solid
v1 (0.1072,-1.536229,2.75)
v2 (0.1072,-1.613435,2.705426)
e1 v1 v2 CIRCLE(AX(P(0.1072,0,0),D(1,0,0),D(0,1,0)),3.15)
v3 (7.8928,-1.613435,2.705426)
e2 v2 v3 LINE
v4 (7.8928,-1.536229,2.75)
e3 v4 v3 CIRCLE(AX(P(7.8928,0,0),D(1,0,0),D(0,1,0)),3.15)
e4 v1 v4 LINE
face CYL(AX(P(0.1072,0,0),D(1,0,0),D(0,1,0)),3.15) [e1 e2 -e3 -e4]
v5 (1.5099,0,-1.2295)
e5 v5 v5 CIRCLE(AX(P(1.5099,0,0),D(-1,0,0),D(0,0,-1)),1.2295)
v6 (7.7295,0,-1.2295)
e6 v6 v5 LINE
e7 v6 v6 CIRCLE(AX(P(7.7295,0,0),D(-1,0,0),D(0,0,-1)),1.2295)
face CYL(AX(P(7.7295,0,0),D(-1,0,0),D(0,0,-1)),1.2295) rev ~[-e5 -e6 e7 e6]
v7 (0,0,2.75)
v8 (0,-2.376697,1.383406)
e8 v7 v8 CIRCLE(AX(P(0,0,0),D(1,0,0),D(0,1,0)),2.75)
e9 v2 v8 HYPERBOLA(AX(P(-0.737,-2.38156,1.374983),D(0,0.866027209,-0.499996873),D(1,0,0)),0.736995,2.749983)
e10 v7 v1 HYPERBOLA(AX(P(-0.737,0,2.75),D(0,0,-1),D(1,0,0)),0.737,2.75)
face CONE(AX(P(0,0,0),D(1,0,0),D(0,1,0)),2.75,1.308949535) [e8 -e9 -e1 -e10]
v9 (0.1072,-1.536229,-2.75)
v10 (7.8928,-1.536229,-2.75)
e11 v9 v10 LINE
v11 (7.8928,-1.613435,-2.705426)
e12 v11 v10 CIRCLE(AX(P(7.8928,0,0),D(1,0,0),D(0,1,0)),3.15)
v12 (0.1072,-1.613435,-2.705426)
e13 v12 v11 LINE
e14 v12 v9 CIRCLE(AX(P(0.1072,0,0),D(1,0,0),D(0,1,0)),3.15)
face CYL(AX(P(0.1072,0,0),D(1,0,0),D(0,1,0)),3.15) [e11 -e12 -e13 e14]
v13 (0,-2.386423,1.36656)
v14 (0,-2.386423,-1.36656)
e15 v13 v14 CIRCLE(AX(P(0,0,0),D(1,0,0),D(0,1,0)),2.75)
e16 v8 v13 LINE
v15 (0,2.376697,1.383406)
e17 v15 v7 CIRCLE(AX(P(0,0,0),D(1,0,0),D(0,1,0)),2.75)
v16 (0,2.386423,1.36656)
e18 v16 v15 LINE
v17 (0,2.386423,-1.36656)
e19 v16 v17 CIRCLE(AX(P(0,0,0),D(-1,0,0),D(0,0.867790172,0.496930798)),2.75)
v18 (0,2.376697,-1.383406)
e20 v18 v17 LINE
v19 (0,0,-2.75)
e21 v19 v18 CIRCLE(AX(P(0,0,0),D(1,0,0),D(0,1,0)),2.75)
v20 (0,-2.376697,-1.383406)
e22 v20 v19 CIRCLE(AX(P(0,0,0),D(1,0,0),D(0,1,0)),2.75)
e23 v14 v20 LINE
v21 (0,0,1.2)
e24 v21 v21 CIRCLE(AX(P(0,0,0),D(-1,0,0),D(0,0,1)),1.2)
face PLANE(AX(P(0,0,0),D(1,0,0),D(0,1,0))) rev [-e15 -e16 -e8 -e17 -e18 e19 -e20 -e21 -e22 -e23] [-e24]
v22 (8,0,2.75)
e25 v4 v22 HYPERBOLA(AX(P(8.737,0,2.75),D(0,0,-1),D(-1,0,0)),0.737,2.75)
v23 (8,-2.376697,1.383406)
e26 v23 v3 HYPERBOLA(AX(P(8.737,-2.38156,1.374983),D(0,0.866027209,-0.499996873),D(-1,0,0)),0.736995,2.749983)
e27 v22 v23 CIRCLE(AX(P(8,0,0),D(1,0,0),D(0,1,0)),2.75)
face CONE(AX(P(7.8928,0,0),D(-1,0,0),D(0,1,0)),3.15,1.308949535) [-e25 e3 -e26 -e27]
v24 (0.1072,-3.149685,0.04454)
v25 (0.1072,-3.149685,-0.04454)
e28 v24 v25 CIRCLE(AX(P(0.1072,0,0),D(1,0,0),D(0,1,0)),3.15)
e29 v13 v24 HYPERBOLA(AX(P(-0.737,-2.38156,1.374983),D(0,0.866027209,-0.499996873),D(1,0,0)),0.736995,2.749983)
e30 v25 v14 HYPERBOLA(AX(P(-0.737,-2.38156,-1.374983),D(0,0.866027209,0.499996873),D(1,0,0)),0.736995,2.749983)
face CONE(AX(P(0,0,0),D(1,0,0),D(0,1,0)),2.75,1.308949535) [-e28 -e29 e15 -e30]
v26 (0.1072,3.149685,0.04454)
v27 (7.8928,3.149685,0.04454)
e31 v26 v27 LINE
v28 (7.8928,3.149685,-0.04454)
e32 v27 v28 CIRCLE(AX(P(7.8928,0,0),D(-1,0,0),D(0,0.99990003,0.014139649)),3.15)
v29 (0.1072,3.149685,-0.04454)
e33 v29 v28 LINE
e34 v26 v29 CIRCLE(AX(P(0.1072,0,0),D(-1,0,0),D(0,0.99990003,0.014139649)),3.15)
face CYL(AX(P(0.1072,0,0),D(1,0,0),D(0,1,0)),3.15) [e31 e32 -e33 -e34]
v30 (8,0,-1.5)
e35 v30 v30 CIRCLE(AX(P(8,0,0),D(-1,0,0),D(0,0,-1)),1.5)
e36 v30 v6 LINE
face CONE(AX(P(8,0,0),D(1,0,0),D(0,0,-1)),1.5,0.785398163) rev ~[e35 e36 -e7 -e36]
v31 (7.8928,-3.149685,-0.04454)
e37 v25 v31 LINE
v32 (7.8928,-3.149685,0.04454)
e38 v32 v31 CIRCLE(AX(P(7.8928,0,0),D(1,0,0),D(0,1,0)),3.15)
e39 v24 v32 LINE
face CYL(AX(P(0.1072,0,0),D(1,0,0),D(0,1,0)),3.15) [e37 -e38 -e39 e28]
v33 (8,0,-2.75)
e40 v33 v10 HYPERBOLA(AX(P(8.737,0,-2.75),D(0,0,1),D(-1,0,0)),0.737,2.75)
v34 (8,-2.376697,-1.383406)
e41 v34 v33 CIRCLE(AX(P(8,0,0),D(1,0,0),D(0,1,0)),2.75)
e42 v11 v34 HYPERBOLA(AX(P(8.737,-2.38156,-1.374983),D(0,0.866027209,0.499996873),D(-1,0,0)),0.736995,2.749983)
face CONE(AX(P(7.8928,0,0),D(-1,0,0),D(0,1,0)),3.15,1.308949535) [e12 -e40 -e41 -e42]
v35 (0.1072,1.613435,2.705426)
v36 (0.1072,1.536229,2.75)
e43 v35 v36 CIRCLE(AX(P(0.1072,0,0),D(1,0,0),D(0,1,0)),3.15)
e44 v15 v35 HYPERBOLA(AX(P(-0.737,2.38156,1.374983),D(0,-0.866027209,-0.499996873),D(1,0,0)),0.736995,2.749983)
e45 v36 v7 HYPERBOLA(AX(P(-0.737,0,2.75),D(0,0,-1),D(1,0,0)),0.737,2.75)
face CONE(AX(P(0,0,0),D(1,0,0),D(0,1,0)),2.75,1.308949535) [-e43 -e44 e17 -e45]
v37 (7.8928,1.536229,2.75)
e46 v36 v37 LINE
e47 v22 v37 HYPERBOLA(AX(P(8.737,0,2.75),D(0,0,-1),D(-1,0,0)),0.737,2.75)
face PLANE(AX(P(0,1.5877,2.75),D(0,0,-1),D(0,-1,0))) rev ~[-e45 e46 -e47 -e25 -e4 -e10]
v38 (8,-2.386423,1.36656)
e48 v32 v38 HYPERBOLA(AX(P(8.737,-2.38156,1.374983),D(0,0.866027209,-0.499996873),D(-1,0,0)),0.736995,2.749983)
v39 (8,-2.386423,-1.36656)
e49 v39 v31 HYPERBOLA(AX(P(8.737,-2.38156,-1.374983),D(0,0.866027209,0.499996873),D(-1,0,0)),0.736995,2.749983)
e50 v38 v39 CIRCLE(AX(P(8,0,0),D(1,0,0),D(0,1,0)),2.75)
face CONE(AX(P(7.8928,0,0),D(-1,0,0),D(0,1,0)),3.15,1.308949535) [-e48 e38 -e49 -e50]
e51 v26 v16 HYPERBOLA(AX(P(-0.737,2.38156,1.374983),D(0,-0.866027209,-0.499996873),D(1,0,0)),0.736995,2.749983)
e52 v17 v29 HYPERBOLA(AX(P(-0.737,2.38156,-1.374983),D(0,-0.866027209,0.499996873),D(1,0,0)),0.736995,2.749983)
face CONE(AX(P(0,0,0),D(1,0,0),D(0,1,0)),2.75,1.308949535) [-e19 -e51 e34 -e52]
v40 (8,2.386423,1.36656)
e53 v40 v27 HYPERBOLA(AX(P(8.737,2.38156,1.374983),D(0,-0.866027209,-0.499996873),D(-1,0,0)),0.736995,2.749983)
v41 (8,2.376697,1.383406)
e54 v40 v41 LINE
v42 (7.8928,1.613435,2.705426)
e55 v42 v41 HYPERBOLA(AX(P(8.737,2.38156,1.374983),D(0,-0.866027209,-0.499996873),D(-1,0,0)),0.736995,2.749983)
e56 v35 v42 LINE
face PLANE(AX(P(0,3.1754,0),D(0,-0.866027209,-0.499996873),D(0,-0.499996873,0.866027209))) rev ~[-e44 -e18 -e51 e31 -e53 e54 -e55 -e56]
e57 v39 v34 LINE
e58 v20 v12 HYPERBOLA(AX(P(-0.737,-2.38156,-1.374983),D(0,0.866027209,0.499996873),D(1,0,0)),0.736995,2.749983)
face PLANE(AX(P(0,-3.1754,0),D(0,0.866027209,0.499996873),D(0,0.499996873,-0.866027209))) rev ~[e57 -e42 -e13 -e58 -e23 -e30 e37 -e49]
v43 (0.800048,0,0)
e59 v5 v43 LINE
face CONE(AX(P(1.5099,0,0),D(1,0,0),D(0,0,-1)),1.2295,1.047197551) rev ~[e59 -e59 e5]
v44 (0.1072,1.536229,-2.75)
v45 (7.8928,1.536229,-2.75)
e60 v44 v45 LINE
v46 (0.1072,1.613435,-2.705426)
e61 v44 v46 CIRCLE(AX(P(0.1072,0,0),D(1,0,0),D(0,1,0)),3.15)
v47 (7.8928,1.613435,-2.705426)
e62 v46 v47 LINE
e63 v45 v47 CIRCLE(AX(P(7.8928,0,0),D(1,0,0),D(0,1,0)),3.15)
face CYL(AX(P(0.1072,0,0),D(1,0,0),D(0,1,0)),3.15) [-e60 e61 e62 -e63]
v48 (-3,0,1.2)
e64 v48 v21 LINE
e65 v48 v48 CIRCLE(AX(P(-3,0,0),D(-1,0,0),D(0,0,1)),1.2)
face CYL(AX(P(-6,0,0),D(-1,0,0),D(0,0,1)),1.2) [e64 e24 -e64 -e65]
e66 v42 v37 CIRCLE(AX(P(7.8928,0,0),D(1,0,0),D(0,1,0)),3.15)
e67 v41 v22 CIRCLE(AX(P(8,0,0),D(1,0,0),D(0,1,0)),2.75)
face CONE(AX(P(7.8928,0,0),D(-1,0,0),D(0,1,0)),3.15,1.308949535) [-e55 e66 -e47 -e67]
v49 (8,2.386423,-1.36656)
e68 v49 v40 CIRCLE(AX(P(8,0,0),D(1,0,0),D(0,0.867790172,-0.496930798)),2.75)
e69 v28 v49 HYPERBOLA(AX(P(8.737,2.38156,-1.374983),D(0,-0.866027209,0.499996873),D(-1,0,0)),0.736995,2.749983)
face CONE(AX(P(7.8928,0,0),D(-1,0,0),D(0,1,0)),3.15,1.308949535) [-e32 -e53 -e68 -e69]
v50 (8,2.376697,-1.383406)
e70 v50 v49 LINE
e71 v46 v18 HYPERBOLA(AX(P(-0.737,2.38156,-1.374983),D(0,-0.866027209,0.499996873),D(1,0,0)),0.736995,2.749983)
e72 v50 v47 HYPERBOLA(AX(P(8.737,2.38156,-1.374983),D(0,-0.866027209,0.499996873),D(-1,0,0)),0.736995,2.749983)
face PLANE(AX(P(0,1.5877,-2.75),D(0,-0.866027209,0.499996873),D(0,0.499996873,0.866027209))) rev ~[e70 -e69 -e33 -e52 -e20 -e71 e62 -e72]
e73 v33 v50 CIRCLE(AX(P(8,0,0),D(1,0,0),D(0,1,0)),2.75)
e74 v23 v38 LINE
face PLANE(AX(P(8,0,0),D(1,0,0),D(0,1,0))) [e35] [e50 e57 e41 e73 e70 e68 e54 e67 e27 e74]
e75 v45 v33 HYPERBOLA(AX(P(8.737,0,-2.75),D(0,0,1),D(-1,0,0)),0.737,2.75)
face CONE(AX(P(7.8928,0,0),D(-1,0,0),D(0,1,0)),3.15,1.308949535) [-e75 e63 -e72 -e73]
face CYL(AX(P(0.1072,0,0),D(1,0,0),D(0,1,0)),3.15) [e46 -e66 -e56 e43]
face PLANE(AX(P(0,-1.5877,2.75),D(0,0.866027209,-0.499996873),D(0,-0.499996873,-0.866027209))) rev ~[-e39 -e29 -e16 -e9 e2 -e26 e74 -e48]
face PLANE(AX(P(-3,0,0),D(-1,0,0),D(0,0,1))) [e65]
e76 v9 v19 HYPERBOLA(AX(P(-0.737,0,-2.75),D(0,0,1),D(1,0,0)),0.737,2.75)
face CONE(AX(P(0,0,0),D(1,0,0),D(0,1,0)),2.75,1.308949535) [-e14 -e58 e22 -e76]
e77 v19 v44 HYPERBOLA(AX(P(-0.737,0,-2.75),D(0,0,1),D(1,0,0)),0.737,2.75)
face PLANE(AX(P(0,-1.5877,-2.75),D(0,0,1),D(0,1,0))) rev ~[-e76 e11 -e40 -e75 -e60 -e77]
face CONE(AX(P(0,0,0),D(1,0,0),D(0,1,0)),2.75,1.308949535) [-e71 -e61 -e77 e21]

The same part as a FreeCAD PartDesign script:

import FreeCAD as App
import Part
import Sketcher
from FreeCAD import Vector
Q = App.Units.Quantity

doc = App.newDocument("Part")
body = doc.addObject("PartDesign::Body", "Body")

# Sketch on XY plane
sketch1 = body.newObject("Sketcher::SketchObject", "Sketch")
sketch1.AttachmentSupport = (doc.getObject("XY_Plane"), [""])
sketch1.MapMode = "FlatFace"
sketch1.addGeometry([
    Part.LineSegment(Vector(0, 0, 0), Vector(8, 0, 0)),  # 0
    Part.LineSegment(Vector(8, 0, 0), Vector(8, 2.75, 0)),  # 1
    Part.LineSegment(Vector(8, 2.75, 0), Vector(7.89, 3.15, 0)),  # 2
    Part.LineSegment(Vector(7.89, 3.15, 0), Vector(0.11, 3.15, 0)),  # 3
    Part.LineSegment(Vector(0.11, 3.15, 0), Vector(0, 2.75, 0)),  # 4
    Part.LineSegment(Vector(0, 2.75, 0), Vector(0, 0, 0)),  # 5
], False)
sketch1.addConstraint([
    Sketcher.Constraint("Coincident", 0, 2, 1, 1),
    Sketcher.Constraint("Coincident", 1, 2, 2, 1),
    Sketcher.Constraint("Coincident", 2, 2, 3, 1),
    Sketcher.Constraint("Coincident", 3, 2, 4, 1),
    Sketcher.Constraint("Coincident", 4, 2, 5, 1),
    Sketcher.Constraint("Coincident", 5, 2, 0, 1),
    Sketcher.Constraint("Horizontal", 0),
    Sketcher.Constraint("Vertical", 1),
    Sketcher.Constraint("Horizontal", 3),
    Sketcher.Constraint("Vertical", 5),
    Sketcher.Constraint("Coincident", 5, 2, -1, 1),
    Sketcher.Constraint("Horizontal", 1, 2, 4, 2),
    Sketcher.Constraint("Equal", 2, 4),
    Sketcher.Constraint("DistanceX", 0, 1, 0, 2, Q("8 mm")),
    Sketcher.Constraint("DistanceY", 1, 1, 1, 2, Q("2.75 mm")),
    Sketcher.Constraint("DistanceY", 1, 2, 2, 2, Q("0.4 mm")),
    Sketcher.Constraint("Distance", 2, Q("0.414 mm")),
])
revolution = body.newObject("PartDesign::Revolution", "Revolution")
revolution.Profile = sketch1
revolution.ReferenceAxis = (sketch1, ["H_Axis"])
revolution.Angle = 360

# Sketch on XY plane
sketch2 = body.newObject("Sketcher::SketchObject", "Sketch001")
sketch2.AttachmentSupport = (doc.getObject("XY_Plane"), [""])
sketch2.MapMode = "FlatFace"
sketch2.addGeometry([
    Part.LineSegment(Vector(-6, 0, 0), Vector(0, 0, 0)),  # 0
    Part.LineSegment(Vector(0, 0, 0), Vector(0, 1.23, 0)),  # 1
    Part.LineSegment(Vector(0, 1.23, 0), Vector(-0.6, 1.23, 0)),  # 2
    Part.LineSegment(Vector(-0.6, 1.23, 0), Vector(-0.6, 1.5, 0)),  # 3
    Part.LineSegment(Vector(-0.6, 1.5, 0), Vector(-5.69, 1.5, 0)),  # 4
    Part.LineSegment(Vector(-5.69, 1.5, 0), Vector(-6, 1.19, 0)),  # 5
    Part.LineSegment(Vector(-6, 1.19, 0), Vector(-6, 0, 0)),  # 6
], False)
sketch2.addConstraint([
    Sketcher.Constraint("Coincident", 0, 2, 1, 1),
    Sketcher.Constraint("Coincident", 1, 2, 2, 1),
    Sketcher.Constraint("Coincident", 2, 2, 3, 1),
    Sketcher.Constraint("Coincident", 3, 2, 4, 1),
    Sketcher.Constraint("Coincident", 4, 2, 5, 1),
    Sketcher.Constraint("Coincident", 5, 2, 6, 1),
    Sketcher.Constraint("Coincident", 6, 2, 0, 1),
    Sketcher.Constraint("Horizontal", 0),
    Sketcher.Constraint("Vertical", 1),
    Sketcher.Constraint("Horizontal", 2),
    Sketcher.Constraint("Vertical", 3),
    Sketcher.Constraint("Horizontal", 4),
    Sketcher.Constraint("Vertical", 6),
    Sketcher.Constraint("Coincident", 0, 2, -1, 1),
    Sketcher.Constraint("DistanceX", 0, 1, 0, 2, Q("6 mm")),
    Sketcher.Constraint("Angle", 5, Q("-135 deg")),
    Sketcher.Constraint("DistanceX", 2, 2, 2, 1, Q("0.6 mm")),
    Sketcher.Constraint("DistanceY", -1, 1, 3, 2, Q("1.5 mm")),
    Sketcher.Constraint("DistanceX", 4, 2, 4, 1, Q("5.0935 mm")),
    Sketcher.Constraint("DistanceY", 1, 1, 1, 2, Q("1.2295 mm")),
])
revolution2 = body.newObject("PartDesign::Revolution", "Revolution001")
revolution2.Profile = sketch2
revolution2.ReferenceAxis = (sketch2, ["H_Axis"])
revolution2.Angle = 360

# Sketch on YZ plane
sketch3 = body.newObject("Sketcher::SketchObject", "Sketch002")
sketch3.AttachmentSupport = (doc.getObject("YZ_Plane"), [""])
sketch3.MapMode = "FlatFace"
sketch3.addGeometry([
    Part.Circle(Vector(0, 0, 0), Vector(0, 0, 1), 6.3),  # 0
    Part.LineSegment(Vector(-1.6, 2.8, 0), Vector(1.6, 2.8, 0)),  # 1
    Part.LineSegment(Vector(1.6, 2.8, 0), Vector(3.2, 0, 0)),  # 2
    Part.LineSegment(Vector(3.2, 0, 0), Vector(1.6, -2.8, 0)),  # 3
    Part.LineSegment(Vector(1.6, -2.8, 0), Vector(-1.6, -2.8, 0)),  # 4
    Part.LineSegment(Vector(-1.6, -2.8, 0), Vector(-3.2, 0, 0)),  # 5
    Part.LineSegment(Vector(-3.2, 0, 0), Vector(-1.6, 2.8, 0)),  # 6
], False)
sketch3.addConstraint([
    Sketcher.Constraint("Coincident", 1, 2, 2, 1),
    Sketcher.Constraint("Coincident", 2, 2, 3, 1),
    Sketcher.Constraint("Coincident", 3, 2, 4, 1),
    Sketcher.Constraint("Coincident", 4, 2, 5, 1),
    Sketcher.Constraint("Coincident", 5, 2, 6, 1),
    Sketcher.Constraint("Coincident", 6, 2, 1, 1),
    Sketcher.Constraint("Horizontal", 1),
    Sketcher.Constraint("Horizontal", 4),
    Sketcher.Constraint("Coincident", 0, 3, -1, 1),
    Sketcher.Constraint("Symmetric", 1, 2, 4, 2, -1, 1),
    Sketcher.Constraint("Symmetric", 2, 2, 5, 2, -1, 1),
    Sketcher.Constraint("PointOnObject", 2, 2, -1),
    Sketcher.Constraint("Parallel", 3, 6),
    Sketcher.Constraint("Vertical", 1, 2, 3, 2),
    Sketcher.Constraint("Diameter", 0, Q("12.6 mm")),
    Sketcher.Constraint("Angle", 2, Q("-60.0002 deg")),
    Sketcher.Constraint("DistanceY", 3, 2, 1, 2, Q("5.5 mm")),
    Sketcher.Constraint("DistanceX", 1, 1, 1, 2, Q("3.1754 mm")),
])
pocket1 = body.newObject("PartDesign::Pocket", "Pocket")
pocket1.Profile = sketch3
pocket1.Length = 8
pocket1.Reversed = True

# Sketch on YZ plane
sketch4 = body.newObject("Sketcher::SketchObject", "Sketch003")
sketch4.AttachmentSupport = (doc.getObject("YZ_Plane"), [""])
sketch4.MapMode = "FlatFace"
sketch4.AttachmentOffset = App.Placement(Vector(0, 0, 8), App.Rotation())
sketch4.addGeometry(Part.Circle(Vector(0, 0, 0), Vector(0, 0, 1), 1.2), False)
sketch4.addConstraint([
    Sketcher.Constraint("Coincident", 0, 3, -1, 1),
    Sketcher.Constraint("Diameter", 0, Q("2.459 mm")),
])
doc.recompute()
hole = body.newObject("PartDesign::Hole", "Hole")
hole.Profile = sketch4
hole.ThreadType = "None"
hole.Diameter = 2.459
hole.DepthType = "Dimension"
hole.Depth = 6.4901
hole.DrillPoint = "Angled"
hole.DrillPointAngle = 120
hole.HoleCutType = "Countersink"
hole.HoleCutDiameter = 3
hole.HoleCutCountersinkAngle = 90

# Sketch on YZ plane
sketch5 = body.newObject("Sketcher::SketchObject", "Sketch004")
sketch5.AttachmentSupport = (doc.getObject("YZ_Plane"), [""])
sketch5.MapMode = "FlatFace"
sketch5.AttachmentOffset = App.Placement(Vector(0, 0, -6), App.Rotation())
sketch5.addGeometry([
    Part.Circle(Vector(0, 0, 0), Vector(0, 0, 1), 2.3),
    Part.Circle(Vector(0, 0, 0), Vector(0, 0, 1), 1.2),
], False)
sketch5.addConstraint([
    Sketcher.Constraint("Coincident", 0, 3, -1, 1),
    Sketcher.Constraint("Coincident", 1, 3, -1, 1),
    Sketcher.Constraint("Diameter", 1, Q("2.4 mm")),
    Sketcher.Constraint("Diameter", 0, Q("4.5696 mm")),
])
pocket2 = body.newObject("PartDesign::Pocket", "Pocket001")
pocket2.Profile = sketch5
pocket2.Length = 6
pocket2.Reversed = True

# Sketch on YZ plane
sketch6 = body.newObject("Sketcher::SketchObject", "Sketch005")
sketch6.AttachmentSupport = (doc.getObject("YZ_Plane"), [""])
sketch6.MapMode = "FlatFace"
sketch6.AttachmentOffset = App.Placement(Vector(0, 0, -6), App.Rotation())
sketch6.addGeometry(Part.Circle(Vector(0, 0, 0), Vector(0, 0, 1), 1.9), False)
sketch6.addConstraint([
    Sketcher.Constraint("Coincident", 0, 3, -1, 1),
    Sketcher.Constraint("Diameter", 0, Q("3.8674 mm")),
])
pocket3 = body.newObject("PartDesign::Pocket", "Pocket002")
pocket3.Profile = sketch6
pocket3.Length = 3
pocket3.Reversed = True

doc.recompute()
